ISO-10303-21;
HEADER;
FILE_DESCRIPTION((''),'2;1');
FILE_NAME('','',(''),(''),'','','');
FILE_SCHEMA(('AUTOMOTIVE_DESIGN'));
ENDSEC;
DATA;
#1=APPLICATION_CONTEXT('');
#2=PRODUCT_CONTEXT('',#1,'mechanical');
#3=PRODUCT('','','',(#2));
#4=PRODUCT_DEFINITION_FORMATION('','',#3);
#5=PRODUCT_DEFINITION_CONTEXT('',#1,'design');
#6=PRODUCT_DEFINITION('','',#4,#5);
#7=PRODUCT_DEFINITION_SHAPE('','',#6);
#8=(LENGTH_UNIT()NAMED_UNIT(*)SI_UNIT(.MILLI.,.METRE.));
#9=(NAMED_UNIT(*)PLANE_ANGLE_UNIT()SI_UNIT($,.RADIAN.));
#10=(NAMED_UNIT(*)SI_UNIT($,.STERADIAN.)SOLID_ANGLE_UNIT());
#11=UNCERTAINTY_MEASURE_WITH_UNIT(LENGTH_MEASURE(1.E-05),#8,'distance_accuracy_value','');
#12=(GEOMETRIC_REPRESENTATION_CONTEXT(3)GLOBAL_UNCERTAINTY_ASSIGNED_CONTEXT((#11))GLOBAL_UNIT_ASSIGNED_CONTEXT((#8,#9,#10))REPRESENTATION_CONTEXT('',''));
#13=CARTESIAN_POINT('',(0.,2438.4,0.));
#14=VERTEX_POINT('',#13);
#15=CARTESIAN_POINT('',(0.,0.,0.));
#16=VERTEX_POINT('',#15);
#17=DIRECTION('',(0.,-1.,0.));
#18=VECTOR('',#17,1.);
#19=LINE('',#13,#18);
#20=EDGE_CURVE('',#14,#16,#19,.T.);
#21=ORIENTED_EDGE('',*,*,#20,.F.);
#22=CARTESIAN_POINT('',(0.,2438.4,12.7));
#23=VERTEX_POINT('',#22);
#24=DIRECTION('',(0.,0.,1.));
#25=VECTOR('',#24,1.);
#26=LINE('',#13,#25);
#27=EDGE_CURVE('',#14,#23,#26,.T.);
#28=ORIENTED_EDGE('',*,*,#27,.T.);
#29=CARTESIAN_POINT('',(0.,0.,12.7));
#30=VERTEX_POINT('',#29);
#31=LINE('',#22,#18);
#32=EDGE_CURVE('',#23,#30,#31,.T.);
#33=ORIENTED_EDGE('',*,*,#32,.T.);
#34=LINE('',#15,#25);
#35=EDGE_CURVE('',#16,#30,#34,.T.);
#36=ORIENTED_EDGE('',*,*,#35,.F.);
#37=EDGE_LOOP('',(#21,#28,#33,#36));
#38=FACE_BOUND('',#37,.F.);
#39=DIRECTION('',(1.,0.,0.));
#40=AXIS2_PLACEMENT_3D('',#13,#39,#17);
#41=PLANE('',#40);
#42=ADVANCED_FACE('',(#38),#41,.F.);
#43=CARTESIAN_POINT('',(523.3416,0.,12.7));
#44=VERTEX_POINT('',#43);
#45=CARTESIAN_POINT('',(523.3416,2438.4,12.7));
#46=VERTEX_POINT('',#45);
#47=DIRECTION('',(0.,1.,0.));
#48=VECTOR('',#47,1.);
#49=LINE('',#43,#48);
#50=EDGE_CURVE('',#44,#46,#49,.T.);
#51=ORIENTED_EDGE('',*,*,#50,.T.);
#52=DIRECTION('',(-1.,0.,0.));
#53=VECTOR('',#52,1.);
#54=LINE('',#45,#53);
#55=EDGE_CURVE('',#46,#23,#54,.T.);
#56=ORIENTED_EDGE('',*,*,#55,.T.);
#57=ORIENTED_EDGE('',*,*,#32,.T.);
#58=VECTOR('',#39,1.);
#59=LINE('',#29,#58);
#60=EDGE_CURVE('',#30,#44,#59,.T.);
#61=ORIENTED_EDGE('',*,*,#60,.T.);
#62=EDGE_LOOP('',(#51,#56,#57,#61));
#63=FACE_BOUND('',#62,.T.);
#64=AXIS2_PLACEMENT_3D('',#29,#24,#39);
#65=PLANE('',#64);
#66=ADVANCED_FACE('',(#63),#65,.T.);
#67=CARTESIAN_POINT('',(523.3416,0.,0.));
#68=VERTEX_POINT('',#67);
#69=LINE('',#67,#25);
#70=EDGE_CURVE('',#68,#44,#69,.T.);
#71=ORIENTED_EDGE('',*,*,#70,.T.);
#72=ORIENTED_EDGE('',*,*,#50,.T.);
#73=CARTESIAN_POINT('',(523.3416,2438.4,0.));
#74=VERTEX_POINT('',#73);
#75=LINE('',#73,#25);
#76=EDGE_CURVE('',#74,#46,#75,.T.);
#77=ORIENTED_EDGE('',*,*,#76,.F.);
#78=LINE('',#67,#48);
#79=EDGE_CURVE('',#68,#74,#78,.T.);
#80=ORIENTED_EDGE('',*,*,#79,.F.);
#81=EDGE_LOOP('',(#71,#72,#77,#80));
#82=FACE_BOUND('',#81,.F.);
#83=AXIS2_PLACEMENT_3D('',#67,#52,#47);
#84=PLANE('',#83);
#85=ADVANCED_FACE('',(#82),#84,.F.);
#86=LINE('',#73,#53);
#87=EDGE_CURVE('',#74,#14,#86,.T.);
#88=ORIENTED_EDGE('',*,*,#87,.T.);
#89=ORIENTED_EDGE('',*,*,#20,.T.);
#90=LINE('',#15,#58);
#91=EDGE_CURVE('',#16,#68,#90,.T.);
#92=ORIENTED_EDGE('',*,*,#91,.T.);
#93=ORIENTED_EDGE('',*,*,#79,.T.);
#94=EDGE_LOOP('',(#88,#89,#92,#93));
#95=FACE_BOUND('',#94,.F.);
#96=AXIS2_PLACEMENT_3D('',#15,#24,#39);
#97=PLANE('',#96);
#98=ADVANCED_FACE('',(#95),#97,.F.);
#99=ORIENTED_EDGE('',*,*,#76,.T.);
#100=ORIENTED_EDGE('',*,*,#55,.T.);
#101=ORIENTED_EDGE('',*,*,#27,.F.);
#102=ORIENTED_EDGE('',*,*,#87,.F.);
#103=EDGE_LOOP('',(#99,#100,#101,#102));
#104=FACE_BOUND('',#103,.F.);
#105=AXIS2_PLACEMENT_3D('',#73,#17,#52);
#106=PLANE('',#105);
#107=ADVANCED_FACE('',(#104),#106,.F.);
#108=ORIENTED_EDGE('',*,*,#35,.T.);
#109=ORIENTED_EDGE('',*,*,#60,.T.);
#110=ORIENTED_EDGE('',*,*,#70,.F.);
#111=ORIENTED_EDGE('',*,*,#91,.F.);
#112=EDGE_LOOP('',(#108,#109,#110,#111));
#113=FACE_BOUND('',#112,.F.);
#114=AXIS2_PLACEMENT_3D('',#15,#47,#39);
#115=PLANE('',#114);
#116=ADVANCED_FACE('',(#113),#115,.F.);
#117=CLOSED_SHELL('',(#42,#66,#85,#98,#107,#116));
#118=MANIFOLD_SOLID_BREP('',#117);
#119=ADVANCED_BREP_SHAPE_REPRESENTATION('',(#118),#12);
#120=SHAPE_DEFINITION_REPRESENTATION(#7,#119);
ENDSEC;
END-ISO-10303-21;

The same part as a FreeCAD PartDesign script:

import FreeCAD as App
import Part
import Sketcher

V = App.Vector
Q = App.Units.Quantity


def add_polygon(sketch, points):
    """Adds a closed chain of lines whose ends are joined by coincident constraints."""
    first, n = sketch.GeometryCount, len(points)
    for a, b in zip(points, points[1:] + points[:1]):
        sketch.addGeometry(Part.LineSegment(App.Vector(*a, 0), App.Vector(*b, 0)), False)
    for i in range(n):
        sketch.addConstraint(Sketcher.Constraint("Coincident", first + i, 2, first + (i + 1) % n, 1))

doc = App.newDocument("Part")
params = doc.addObject("Spreadsheet::Sheet", "Params")
for row, (alias, value) in enumerate([
    ("sketch1_height", "96 in"),
    ("sketch1_width", "20.604 in"),
    ("pad1_length", "0.5 in"),
], start=1):
    params.set(f"A{row}", alias)
    params.set(f"B{row}", "=" + value)
    params.setAlias(f"B{row}", alias)

body = doc.addObject("PartDesign::Body", "Body")

sketch1 = body.newObject("Sketcher::SketchObject", "Sketch")
sketch1.AttachmentSupport = (doc.getObject("XY_Plane"), [""])
sketch1.MapMode = "FlatFace"
add_polygon(sketch1, [(0, 2438.4), (0, 0), (523.3416, 0), (523.3416, 2438.4)])
sketch1.addConstraint([
    Sketcher.Constraint("Vertical", 0),
    Sketcher.Constraint("Horizontal", 1),
    Sketcher.Constraint("Vertical", 2),
    Sketcher.Constraint("Horizontal", 3),
    Sketcher.Constraint("Coincident", 0, 2, -1, 1),
    Sketcher.Constraint("DistanceY", 0, 2, 0, 1, Q("96 in")),
    Sketcher.Constraint("DistanceX", 1, 1, 1, 2, Q("20.604 in")),
])
sketch1.setExpression("Constraints[9]", "Params.sketch1_height")
sketch1.setExpression("Constraints[10]", "Params.sketch1_width")
pad1 = body.newObject("PartDesign::Pad", "Pad")
pad1.Profile = sketch1
pad1.setExpression("Length", "Params.pad1_length")

doc.recompute()
